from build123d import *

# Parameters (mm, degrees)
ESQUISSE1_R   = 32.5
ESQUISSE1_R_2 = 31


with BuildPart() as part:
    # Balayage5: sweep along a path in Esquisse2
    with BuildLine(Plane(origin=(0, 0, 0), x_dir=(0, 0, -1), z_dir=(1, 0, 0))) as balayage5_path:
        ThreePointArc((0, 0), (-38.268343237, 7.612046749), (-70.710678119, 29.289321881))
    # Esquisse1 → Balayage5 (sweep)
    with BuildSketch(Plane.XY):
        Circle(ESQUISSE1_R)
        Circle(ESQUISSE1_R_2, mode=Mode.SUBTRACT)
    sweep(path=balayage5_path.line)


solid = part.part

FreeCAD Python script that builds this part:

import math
import FreeCAD as App
import Part
import Sketcher

V = App.Vector

doc = App.newDocument("Part")
body = doc.addObject("PartDesign::Body", "Body")

# Sketch on XY plane
sketch1 = body.newObject("Sketcher::SketchObject", "Sketch")
sketch1.AttachmentSupport = (doc.getObject("XY_Plane"), [""])
sketch1.MapMode = "FlatFace"
sketch1.addGeometry([
    Part.Circle(V(0, 0, 0), V(0, 0, 1), 32),
    Part.Circle(V(0, 0, 0), V(0, 0, 1), 31),
], False)
sketch1.addConstraint([
    Sketcher.Constraint("Coincident", 0, 3, -1, 1),
    Sketcher.Constraint("Coincident", 1, 3, -1, 1),
    Sketcher.Constraint("Diameter", 0, 65.0),
    Sketcher.Constraint("Diameter", 1, 62.0),
])

# Sketch on YZ plane
sketch2 = body.newObject("Sketcher::SketchObject", "Sketch001")
sketch2.AttachmentSupport = (doc.getObject("YZ_Plane"), [""])
sketch2.MapMode = "FlatFace"
sketch2.addGeometry(Part.ArcOfCircle(Part.Circle(V(100, 0, 0), V(0, 0, 1), 100), math.radians(135), math.radians(180)), False)
sketch2.addConstraint([
    Sketcher.Constraint("Coincident", 0, 2, -1, 1),
    Sketcher.Constraint("PointOnObject", 0, 3, -1),
    Sketcher.Constraint("Radius", 0, 100.0),
    Sketcher.Constraint("DistanceX", -1, 1, 0, 1, 29.289322),
])
doc.recompute()

additivepipe = body.newObject("PartDesign::AdditivePipe", "AdditivePipe")
additivepipe.Profile = sketch1
additivepipe.Spine = (sketch2, ["Edge1"])

doc.recompute()
